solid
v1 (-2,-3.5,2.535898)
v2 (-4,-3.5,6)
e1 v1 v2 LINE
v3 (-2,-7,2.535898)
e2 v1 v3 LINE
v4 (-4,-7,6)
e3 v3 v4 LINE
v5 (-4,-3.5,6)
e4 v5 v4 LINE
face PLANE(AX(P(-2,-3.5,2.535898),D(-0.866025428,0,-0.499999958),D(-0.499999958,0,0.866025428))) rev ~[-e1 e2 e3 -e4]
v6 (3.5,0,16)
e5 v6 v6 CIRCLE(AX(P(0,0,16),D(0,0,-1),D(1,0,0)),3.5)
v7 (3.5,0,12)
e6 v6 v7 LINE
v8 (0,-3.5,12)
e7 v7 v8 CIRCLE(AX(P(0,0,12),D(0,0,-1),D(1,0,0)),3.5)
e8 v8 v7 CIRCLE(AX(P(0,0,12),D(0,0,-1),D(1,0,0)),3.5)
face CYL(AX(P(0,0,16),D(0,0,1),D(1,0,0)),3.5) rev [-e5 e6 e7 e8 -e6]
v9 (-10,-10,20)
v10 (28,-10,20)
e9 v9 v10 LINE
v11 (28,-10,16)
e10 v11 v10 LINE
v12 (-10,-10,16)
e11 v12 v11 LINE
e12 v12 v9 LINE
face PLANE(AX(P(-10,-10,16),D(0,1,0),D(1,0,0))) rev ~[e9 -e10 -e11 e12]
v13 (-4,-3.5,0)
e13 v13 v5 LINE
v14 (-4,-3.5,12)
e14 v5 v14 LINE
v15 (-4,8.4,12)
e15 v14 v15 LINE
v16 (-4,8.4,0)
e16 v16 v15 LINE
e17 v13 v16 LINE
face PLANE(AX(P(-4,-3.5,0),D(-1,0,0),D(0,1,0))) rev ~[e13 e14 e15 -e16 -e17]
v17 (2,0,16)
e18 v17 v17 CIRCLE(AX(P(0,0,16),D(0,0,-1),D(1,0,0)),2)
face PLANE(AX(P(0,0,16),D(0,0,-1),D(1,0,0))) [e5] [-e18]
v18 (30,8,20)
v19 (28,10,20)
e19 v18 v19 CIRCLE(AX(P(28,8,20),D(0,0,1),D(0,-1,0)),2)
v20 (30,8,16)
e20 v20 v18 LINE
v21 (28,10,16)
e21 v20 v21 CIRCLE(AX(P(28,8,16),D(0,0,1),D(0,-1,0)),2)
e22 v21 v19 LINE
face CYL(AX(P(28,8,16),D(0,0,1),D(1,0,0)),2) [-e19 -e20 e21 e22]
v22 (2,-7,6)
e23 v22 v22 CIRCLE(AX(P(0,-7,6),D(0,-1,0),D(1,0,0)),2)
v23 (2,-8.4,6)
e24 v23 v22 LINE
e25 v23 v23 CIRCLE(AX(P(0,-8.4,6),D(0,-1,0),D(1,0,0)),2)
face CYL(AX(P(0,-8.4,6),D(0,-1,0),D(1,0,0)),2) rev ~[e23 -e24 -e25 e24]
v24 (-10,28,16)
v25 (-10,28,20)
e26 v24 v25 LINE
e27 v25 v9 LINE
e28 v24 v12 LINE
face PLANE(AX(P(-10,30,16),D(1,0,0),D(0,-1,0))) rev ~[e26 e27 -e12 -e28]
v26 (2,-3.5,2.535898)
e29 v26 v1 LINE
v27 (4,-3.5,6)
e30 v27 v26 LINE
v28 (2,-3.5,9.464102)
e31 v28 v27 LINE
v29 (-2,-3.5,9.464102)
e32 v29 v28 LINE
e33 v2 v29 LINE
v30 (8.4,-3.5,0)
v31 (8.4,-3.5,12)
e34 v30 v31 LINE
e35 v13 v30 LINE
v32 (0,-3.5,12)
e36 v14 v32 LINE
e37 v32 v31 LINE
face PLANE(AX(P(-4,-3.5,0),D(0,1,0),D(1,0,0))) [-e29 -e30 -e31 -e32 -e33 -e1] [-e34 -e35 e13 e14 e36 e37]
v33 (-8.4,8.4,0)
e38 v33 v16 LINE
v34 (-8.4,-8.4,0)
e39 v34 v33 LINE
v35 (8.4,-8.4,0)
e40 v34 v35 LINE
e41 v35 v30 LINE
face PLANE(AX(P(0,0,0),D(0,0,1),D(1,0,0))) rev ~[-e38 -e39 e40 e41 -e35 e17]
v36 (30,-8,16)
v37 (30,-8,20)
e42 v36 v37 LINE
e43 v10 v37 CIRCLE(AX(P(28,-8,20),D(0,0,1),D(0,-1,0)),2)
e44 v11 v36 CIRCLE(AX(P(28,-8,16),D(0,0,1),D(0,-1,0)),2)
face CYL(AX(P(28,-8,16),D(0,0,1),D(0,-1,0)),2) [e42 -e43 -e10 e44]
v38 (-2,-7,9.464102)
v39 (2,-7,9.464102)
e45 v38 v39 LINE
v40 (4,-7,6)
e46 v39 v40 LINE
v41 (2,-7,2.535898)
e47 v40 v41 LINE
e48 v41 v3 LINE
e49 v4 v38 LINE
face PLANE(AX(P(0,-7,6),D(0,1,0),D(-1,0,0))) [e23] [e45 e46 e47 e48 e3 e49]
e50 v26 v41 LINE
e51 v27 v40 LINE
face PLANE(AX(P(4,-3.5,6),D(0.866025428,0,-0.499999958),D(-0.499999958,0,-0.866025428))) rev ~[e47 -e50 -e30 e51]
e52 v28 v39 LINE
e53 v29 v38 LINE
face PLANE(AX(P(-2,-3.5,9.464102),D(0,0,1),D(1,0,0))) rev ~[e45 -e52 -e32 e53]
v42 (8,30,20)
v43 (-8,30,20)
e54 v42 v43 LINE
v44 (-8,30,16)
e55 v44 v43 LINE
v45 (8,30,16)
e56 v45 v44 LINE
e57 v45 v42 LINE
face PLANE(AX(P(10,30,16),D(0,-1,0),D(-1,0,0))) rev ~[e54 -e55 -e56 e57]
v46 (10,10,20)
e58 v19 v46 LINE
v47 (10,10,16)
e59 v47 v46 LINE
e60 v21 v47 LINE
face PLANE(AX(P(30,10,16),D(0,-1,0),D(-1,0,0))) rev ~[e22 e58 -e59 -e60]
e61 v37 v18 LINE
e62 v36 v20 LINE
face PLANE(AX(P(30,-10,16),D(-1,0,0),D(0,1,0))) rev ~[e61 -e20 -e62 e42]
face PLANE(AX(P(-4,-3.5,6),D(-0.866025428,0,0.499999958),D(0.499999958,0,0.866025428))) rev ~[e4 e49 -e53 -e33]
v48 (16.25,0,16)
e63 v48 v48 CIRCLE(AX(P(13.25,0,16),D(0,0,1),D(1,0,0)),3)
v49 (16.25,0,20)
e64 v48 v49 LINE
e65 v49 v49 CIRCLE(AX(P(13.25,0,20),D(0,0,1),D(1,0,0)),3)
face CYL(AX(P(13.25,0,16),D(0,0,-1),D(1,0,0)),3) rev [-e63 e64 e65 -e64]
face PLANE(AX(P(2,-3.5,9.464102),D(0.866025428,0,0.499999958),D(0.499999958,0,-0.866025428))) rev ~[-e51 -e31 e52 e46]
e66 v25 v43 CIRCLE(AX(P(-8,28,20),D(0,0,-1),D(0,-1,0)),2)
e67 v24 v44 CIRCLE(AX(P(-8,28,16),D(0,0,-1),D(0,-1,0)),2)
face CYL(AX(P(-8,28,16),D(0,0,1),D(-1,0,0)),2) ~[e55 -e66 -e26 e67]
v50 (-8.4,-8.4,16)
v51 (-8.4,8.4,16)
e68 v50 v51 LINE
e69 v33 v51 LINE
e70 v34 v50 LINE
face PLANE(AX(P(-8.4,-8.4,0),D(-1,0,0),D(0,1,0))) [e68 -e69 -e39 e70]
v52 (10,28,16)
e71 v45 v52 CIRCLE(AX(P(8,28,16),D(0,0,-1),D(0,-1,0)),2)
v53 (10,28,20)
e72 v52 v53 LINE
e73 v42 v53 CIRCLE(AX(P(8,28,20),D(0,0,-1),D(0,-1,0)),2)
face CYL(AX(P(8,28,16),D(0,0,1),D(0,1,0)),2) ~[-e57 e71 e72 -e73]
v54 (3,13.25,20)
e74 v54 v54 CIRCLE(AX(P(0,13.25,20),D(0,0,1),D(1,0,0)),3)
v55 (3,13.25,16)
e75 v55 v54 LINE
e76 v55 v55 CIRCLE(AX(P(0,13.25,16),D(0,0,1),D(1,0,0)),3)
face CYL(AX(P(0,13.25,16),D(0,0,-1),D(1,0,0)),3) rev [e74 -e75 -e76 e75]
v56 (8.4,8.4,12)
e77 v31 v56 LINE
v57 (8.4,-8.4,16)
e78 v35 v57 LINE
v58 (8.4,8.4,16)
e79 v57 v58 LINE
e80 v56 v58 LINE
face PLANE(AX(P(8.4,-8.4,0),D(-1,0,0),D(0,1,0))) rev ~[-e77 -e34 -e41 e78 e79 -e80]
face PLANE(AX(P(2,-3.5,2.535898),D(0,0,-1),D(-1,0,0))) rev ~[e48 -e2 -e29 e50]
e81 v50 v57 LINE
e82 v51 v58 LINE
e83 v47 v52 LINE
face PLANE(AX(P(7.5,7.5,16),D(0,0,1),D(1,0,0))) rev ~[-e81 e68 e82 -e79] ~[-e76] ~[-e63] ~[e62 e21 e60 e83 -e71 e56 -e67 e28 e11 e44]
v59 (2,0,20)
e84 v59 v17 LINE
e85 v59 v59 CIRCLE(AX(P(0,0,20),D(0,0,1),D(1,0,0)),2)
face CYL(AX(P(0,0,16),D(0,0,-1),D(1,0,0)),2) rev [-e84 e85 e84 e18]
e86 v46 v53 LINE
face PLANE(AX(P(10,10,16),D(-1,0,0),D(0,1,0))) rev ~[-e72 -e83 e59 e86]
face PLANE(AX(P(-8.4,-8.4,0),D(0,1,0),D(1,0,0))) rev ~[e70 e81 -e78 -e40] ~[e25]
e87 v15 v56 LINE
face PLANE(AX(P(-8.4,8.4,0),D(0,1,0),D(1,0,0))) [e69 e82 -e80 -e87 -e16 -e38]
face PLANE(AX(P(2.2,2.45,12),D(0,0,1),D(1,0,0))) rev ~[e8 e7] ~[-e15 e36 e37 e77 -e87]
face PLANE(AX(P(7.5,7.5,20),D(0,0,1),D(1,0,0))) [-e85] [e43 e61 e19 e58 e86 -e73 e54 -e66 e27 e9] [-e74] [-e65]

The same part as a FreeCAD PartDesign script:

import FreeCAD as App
import Part
import Sketcher

V = App.Vector
Q = App.Units.Quantity


def edges_at(feature, points):
    """Names of the edges that pass closest to the given points."""
    edges = feature.Shape.Edges
    near = lambda p: min(range(len(edges)), key=lambda i: edges[i].distToShape(Part.Vertex(*p))[0])
    return sorted({f"Edge{near(p) + 1}" for p in points})


def add_polygon(sketch, points):
    """Adds a closed chain of lines whose ends are joined by coincident constraints."""
    first, n = sketch.GeometryCount, len(points)
    for a, b in zip(points, points[1:] + points[:1]):
        sketch.addGeometry(Part.LineSegment(App.Vector(*a, 0), App.Vector(*b, 0)), False)
    for i in range(n):
        sketch.addConstraint(Sketcher.Constraint("Coincident", first + i, 2, first + (i + 1) % n, 1))

doc = App.newDocument("Part")
body = doc.addObject("PartDesign::Body", "Body")

# Sketch on XY plane
sketch1 = body.newObject("Sketcher::SketchObject", "Sketch")
sketch1.AttachmentSupport = (doc.getObject("XY_Plane"), [""])
sketch1.MapMode = "FlatFace"
add_polygon(sketch1, [(-8.4, 8.4), (-8.4, -8.4), (8.4, -8.4), (8.4, 8.4)])  # lines 0-3
sketch1.addGeometry(Part.Circle(V(0, 0, 0), V(0, 0, 1), 2), False)  # 4
sketch1.addConstraint(Sketcher.Constraint("Vertical", 0))
sketch1.addConstraint(Sketcher.Constraint("Horizontal", 1))
sketch1.addConstraint(Sketcher.Constraint("Vertical", 2))
sketch1.addConstraint(Sketcher.Constraint("Horizontal", 3))
sketch1.addConstraint(Sketcher.Constraint("Coincident", 4, 3, -1, 1))
sketch1.addConstraint(Sketcher.Constraint("Symmetric", 0, 2, 2, 2, -1, 1))
sketch1.addConstraint(Sketcher.Constraint("Equal", 3, 0))
sketch1.addConstraint(Sketcher.Constraint("Diameter", 4, Q("4 mm")))
sketch1.addConstraint(Sketcher.Constraint("DistanceX", 1, 1, 1, 2, Q("16.8 mm")))
pad1 = body.newObject("PartDesign::Pad", "Pad")
pad1.Profile = sketch1
pad1.Length = 16

# Sketch on XY plane
sketch2 = body.newObject("Sketcher::SketchObject", "Sketch001")
sketch2.AttachmentSupport = (doc.getObject("XY_Plane"), [""])
sketch2.MapMode = "FlatFace"
sketch2.AttachmentOffset = App.Placement(V(0, 0, 16), App.Rotation())
add_polygon(sketch2, [(-10, -10), (30, -10), (30, 10), (10, 10), (10, 30), (-10, 30)])  # lines 0-5
sketch2.addGeometry(Part.Circle(V(0, 0, 0), V(0, 0, 1), 2), False)  # 6
sketch2.addGeometry(Part.Circle(V(13.25, 0, 0), V(0, 0, 1), 3), False)  # 7
sketch2.addGeometry(Part.Circle(V(0, 13.25, 0), V(0, 0, 1), 3), False)  # 8
sketch2.addConstraint(Sketcher.Constraint("Horizontal", 0))
sketch2.addConstraint(Sketcher.Constraint("Vertical", 1))
sketch2.addConstraint(Sketcher.Constraint("Horizontal", 2))
sketch2.addConstraint(Sketcher.Constraint("Vertical", 3))
sketch2.addConstraint(Sketcher.Constraint("Horizontal", 4))
sketch2.addConstraint(Sketcher.Constraint("Vertical", 5))
sketch2.addConstraint(Sketcher.Constraint("Coincident", 6, 3, -1, 1))
sketch2.addConstraint(Sketcher.Constraint("Equal", 7, 8))
sketch2.addConstraint(Sketcher.Constraint("Symmetric", 2, 2, 5, 2, -1, 1))
sketch2.addConstraint(Sketcher.Constraint("PointOnObject", 7, 3, -1))
sketch2.addConstraint(Sketcher.Constraint("PointOnObject", 8, 3, -2))
sketch2.addConstraint(Sketcher.Constraint("Equal", 2, 4))
sketch2.addConstraint(Sketcher.Constraint("Equal", 4, 1))
sketch2.addConstraint(Sketcher.Constraint("Equal", 1, 3))
sketch2.addConstraint(Sketcher.Constraint("Diameter", 6, Q("4 mm")))
sketch2.addConstraint(Sketcher.Constraint("Diameter", 7, Q("6 mm")))
sketch2.addConstraint(Sketcher.Constraint("DistanceX", 0, 1, 0, 2, Q("40 mm")))
sketch2.addConstraint(Sketcher.Constraint("DistanceX", -1, 1, 7, 3, Q("13.25 mm")))
sketch2.addConstraint(Sketcher.Constraint("DistanceY", -1, 1, 8, 3, Q("13.25 mm")))
pad2 = body.newObject("PartDesign::Pad", "Pad001")
pad2.Profile = sketch2
pad2.Length = 4

# Sketch on XY plane
sketch3 = body.newObject("Sketcher::SketchObject", "Sketch002")
sketch3.AttachmentSupport = (doc.getObject("XY_Plane"), [""])
sketch3.MapMode = "FlatFace"
add_polygon(sketch3, [(-4, 8.4), (-4, -3.5), (8.4, -3.5), (8.4, 8.4)])  # lines 0-3
sketch3.addConstraint(Sketcher.Constraint("Vertical", 0))
sketch3.addConstraint(Sketcher.Constraint("Horizontal", 1))
sketch3.addConstraint(Sketcher.Constraint("Vertical", 2))
sketch3.addConstraint(Sketcher.Constraint("Horizontal", 3))
sketch3.addConstraint(Sketcher.Constraint("DistanceX", 1, 1, 1, 2, Q("12.4 mm")))
sketch3.addConstraint(Sketcher.Constraint("DistanceY", 0, 2, 0, 1, Q("11.9 mm")))
sketch3.addConstraint(Sketcher.Constraint("DistanceX", 0, 2, -1, 1, Q("4 mm")))
sketch3.addConstraint(Sketcher.Constraint("DistanceY", 0, 2, -1, 1, Q("3.5 mm")))
pocket1 = body.newObject("PartDesign::Pocket", "Pocket")
pocket1.Profile = sketch3
pocket1.Length = 12
pocket1.Reversed = True

# Sketch on XY plane
sketch4 = body.newObject("Sketcher::SketchObject", "Sketch003")
sketch4.AttachmentSupport = (doc.getObject("XY_Plane"), [""])
sketch4.MapMode = "FlatFace"
sketch4.AttachmentOffset = App.Placement(V(0, 0, 16), App.Rotation())
sketch4.addGeometry(Part.Circle(V(0, 0, 0), V(0, 0, 1), 3.5), False)
sketch4.addConstraint(Sketcher.Constraint("Coincident", 0, 3, -1, 1))
sketch4.addConstraint(Sketcher.Constraint("Diameter", 0, Q("7 mm")))
pocket2 = body.newObject("PartDesign::Pocket", "Pocket001")
pocket2.Profile = sketch4
pocket2.Length = 4

# Sketch on XZ plane
sketch5 = body.newObject("Sketcher::SketchObject", "Sketch004")
sketch5.AttachmentSupport = (doc.getObject("XZ_Plane"), [""])
sketch5.MapMode = "FlatFace"
sketch5.AttachmentOffset = App.Placement(V(0, 0, 3.5), App.Rotation())
add_polygon(sketch5, [(-4, 6), (-2, 9.464102), (2, 9.464102), (4, 6), (2, 2.535898), (-2, 2.535898)])  # lines 0-5
sketch5.addConstraint(Sketcher.Constraint("Horizontal", 1))
sketch5.addConstraint(Sketcher.Constraint("Horizontal", 4))
sketch5.addConstraint(Sketcher.Constraint("Symmetric", 2, 2, 5, 2, -2))
sketch5.addConstraint(Sketcher.Constraint("Parallel", 0, 3))
sketch5.addConstraint(Sketcher.Constraint("Parallel", 2, 5))
sketch5.addConstraint(Sketcher.Constraint("Vertical", 1, 2, 3, 2))
sketch5.addConstraint(Sketcher.Constraint("Vertical", 0, 2, 4, 2))
sketch5.addConstraint(Sketcher.Constraint("DistanceX", 1, 1, 1, 2, Q("4 mm")))
sketch5.addConstraint(Sketcher.Constraint("Angle", 0, Q("60.000003 deg")))
sketch5.addConstraint(Sketcher.Constraint("Distance", 0, Q("4 mm")))
sketch5.addConstraint(Sketcher.Constraint("DistanceY", -1, 1, 2, 2, Q("6 mm")))
pocket3 = body.newObject("PartDesign::Pocket", "Pocket002")
pocket3.Profile = sketch5
pocket3.Length = 3.5
pocket3.Reversed = True

# Sketch on XZ plane
sketch6 = body.newObject("Sketcher::SketchObject", "Sketch005")
sketch6.AttachmentSupport = (doc.getObject("XZ_Plane"), [""])
sketch6.MapMode = "FlatFace"
sketch6.AttachmentOffset = App.Placement(V(0, 0, 8.4), App.Rotation())
sketch6.addGeometry(Part.Circle(V(0, 6, 0), V(0, 0, 1), 2), False)
sketch6.addConstraint(Sketcher.Constraint("PointOnObject", 0, 3, -2))
sketch6.addConstraint(Sketcher.Constraint("Diameter", 0, Q("4 mm")))
sketch6.addConstraint(Sketcher.Constraint("DistanceY", -1, 1, 0, 3, Q("6 mm")))
pocket4 = body.newObject("PartDesign::Pocket", "Pocket003")
pocket4.Profile = sketch6
pocket4.Type = "ThroughAll"
doc.recompute()

fillet = body.newObject("PartDesign::Fillet", "Fillet")
fillet.Base = (pocket4, edges_at(pocket4, [
    (-10, 30, 18),
    (10, 30, 18),
    (30, 10, 18),
    (30, -10, 18),
]))
fillet.Radius = 2

doc.recompute()
